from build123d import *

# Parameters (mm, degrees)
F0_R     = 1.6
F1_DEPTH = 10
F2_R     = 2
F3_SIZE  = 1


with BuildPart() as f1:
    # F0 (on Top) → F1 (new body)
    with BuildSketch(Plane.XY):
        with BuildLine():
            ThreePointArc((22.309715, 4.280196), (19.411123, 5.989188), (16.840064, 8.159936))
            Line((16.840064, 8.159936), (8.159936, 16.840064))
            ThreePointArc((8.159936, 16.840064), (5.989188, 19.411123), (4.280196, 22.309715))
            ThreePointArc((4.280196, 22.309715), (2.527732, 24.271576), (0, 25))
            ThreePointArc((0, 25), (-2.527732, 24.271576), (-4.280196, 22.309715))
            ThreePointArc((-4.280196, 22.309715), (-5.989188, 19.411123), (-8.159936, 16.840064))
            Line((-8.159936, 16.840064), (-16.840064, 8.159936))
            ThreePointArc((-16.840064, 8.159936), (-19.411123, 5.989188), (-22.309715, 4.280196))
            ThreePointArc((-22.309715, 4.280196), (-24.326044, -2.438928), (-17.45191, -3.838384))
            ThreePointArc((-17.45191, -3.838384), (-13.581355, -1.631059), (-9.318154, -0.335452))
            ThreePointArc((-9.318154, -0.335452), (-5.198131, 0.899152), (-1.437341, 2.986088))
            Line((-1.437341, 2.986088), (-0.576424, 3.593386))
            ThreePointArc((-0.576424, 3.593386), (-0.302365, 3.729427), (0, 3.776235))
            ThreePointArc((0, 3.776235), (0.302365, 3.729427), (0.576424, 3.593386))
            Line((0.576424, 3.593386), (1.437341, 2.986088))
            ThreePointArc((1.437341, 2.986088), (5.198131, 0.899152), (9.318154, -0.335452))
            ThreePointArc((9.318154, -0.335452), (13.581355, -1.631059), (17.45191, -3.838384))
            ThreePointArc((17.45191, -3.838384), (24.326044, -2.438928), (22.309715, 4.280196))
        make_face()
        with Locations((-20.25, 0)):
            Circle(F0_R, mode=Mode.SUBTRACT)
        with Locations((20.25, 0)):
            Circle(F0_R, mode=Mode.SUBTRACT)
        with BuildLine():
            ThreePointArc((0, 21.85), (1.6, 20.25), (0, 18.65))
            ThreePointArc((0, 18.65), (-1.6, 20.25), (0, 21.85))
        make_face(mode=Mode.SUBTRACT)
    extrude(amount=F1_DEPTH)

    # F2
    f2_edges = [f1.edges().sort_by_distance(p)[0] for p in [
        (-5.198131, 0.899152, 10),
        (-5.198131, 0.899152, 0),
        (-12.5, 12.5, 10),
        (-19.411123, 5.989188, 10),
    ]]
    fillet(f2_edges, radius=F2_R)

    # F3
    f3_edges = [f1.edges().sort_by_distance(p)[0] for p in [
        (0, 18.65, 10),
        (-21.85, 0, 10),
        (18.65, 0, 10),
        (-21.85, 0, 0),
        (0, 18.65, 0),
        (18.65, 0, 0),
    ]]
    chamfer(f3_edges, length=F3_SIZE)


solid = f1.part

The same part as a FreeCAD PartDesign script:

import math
import FreeCAD as App
import Part
import Sketcher

V = App.Vector


def edges_at(feature, points):
    """Names of the edges that pass closest to the given points."""
    edges = feature.Shape.Edges
    near = lambda p: min(range(len(edges)), key=lambda i: edges[i].distToShape(Part.Vertex(*p))[0])
    return sorted({f"Edge{near(p) + 1}" for p in points})

doc = App.newDocument("Part")
body = doc.addObject("PartDesign::Body", "Body")

sketch1 = body.newObject("Sketcher::SketchObject", "Sketch")
sketch1.AttachmentSupport = (doc.getObject("XY_Plane"), [""])
sketch1.MapMode = "FlatFace"
sketch1.addGeometry([
    Part.ArcOfCircle(Part.Circle(V(30.982208, 22.302085, 0), V(0, 0, 1), 20.000015), math.radians(-134.99999), math.radians(-115.69779)),
    Part.LineSegment(V(16.840064, 8.159936, 0), V(8.159936, 16.840064, 0)),
    Part.ArcOfCircle(Part.Circle(V(22.302085, 30.982208, 0), V(0, 0, 1), 20.000015), math.radians(-154.30221), math.radians(-135.00001)),
    Part.ArcOfCircle(Part.Circle(V(0.000001, 20.25, 0), V(0, 0, 1), 4.75), math.radians(25.697781), math.radians(90.000007)),
    Part.ArcOfCircle(Part.Circle(V(-0.000001, 20.25, 0), V(0, 0, 1), 4.75), math.radians(89.999993), math.radians(154.302219)),
    Part.ArcOfCircle(Part.Circle(V(-22.302085, 30.982208, 0), V(0, 0, 1), 20.000015), math.radians(-44.99999), math.radians(-25.69779)),
    Part.LineSegment(V(-8.159936, 16.840064, 0), V(-16.840064, 8.159936, 0)),
    Part.ArcOfCircle(Part.Circle(V(-30.982208, 22.302085, 0), V(0, 0, 1), 20.000015), math.radians(-64.30221), math.radians(-45.00001)),
    Part.ArcOfCircle(Part.Circle(V(-20.25, 0, 0), V(0, 0, 1), 4.75), math.radians(115.697777), math.radians(306.091156)),
    Part.ArcOfCircle(Part.Circle(V(-5.670473, -20.00001, 0), V(0, 0, 1), 20.000011), math.radians(100.50865), math.radians(126.09115)),
    Part.ArcOfCircle(Part.Circle(V(-12.965829, 19.329091, 0), V(0, 0, 1), 19.999994), math.radians(-79.49136), math.radians(-54.800544)),
    Part.LineSegment(V(-1.437341, 2.986088, 0), V(-0.576424, 3.593386, 0)),
    Part.ArcOfCircle(Part.Circle(V(0.000002, 2.776229, 0), V(0, 0, 1), 1.000006), math.radians(90.000096), math.radians(125.199279)),
    Part.ArcOfCircle(Part.Circle(V(-0.000002, 2.776229, 0), V(0, 0, 1), 1.000006), math.radians(54.800721), math.radians(89.999904)),
    Part.LineSegment(V(0.576424, 3.593386, 0), V(1.437341, 2.986088, 0)),
    Part.ArcOfCircle(Part.Circle(V(12.965829, 19.329091, 0), V(0, 0, 1), 19.999994), math.radians(-125.199456), math.radians(-100.50864)),
    Part.ArcOfCircle(Part.Circle(V(5.670473, -20.00001, 0), V(0, 0, 1), 20.000011), math.radians(53.90885), math.radians(79.49135)),
    Part.ArcOfCircle(Part.Circle(V(20.25, 0, 0), V(0, 0, 1), 4.75), math.radians(-126.091156), math.radians(64.302223)),
    Part.Circle(V(-20.25, 0, 0), V(0, 0, 1), 1.6),
    Part.Circle(V(20.25, 0, 0), V(0, 0, 1), 1.6),
    Part.Circle(V(0, 20.25, 0), V(0, 0, 1), 1.6),
], False)
sketch1.addConstraint([
    Sketcher.Constraint("Tangent", 0, 1, 1, 1),
    Sketcher.Constraint("Tangent", 1, 2, 2, 2),
    Sketcher.Constraint("Tangent", 2, 1, 3, 1),
    Sketcher.Constraint("Tangent", 3, 2, 4, 1),
    Sketcher.Constraint("Tangent", 4, 2, 5, 2),
    Sketcher.Constraint("Tangent", 5, 1, 6, 1),
    Sketcher.Constraint("Tangent", 6, 2, 7, 2),
    Sketcher.Constraint("Tangent", 7, 1, 8, 1),
    Sketcher.Constraint("Tangent", 8, 2, 9, 2),
    Sketcher.Constraint("Tangent", 9, 1, 10, 1),
    Sketcher.Constraint("Tangent", 10, 2, 11, 1),
    Sketcher.Constraint("Coincident", 11, 2, 12, 2),
    Sketcher.Constraint("Coincident", 12, 1, 13, 2),
    Sketcher.Constraint("Coincident", 13, 1, 14, 1),
    Sketcher.Constraint("Tangent", 14, 2, 15, 1),
    Sketcher.Constraint("Tangent", 15, 2, 16, 2),
    Sketcher.Constraint("Tangent", 16, 1, 17, 1),
    Sketcher.Constraint("Tangent", 17, 2, 0, 2),
    Sketcher.Constraint("Coincident", 13, 3, 12, 3),
    Sketcher.Constraint("Coincident", 18, 3, 8, 3),
    Sketcher.Constraint("Coincident", 19, 3, 17, 3),
    Sketcher.Constraint("Coincident", 20, 3, 3, 3),
    Sketcher.Constraint("Equal", 0, 2),
    Sketcher.Constraint("Equal", 3, 4),
    Sketcher.Constraint("Equal", 2, 5),
    Sketcher.Constraint("Equal", 5, 7),
    Sketcher.Constraint("Equal", 4, 8),
    Sketcher.Constraint("Equal", 10, 15),
    Sketcher.Constraint("Equal", 9, 16),
    Sketcher.Constraint("Equal", 8, 17),
    Sketcher.Constraint("Equal", 18, 19),
    Sketcher.Constraint("Equal", 19, 20),
    Sketcher.Constraint("Symmetric", 8, 3, 17, 3, -1, 1),
    Sketcher.Constraint("Symmetric", 2, 3, 5, 3, -2),
    Sketcher.Constraint("Symmetric", 0, 3, 7, 3, -2),
    Sketcher.Constraint("Symmetric", 10, 3, 15, 3, -2),
    Sketcher.Constraint("Symmetric", 11, 2, 13, 1, -2),
    Sketcher.Constraint("PointOnObject", 3, 2, -2),
    Sketcher.Constraint("PointOnObject", 12, 1, -2),
    Sketcher.Constraint("Perpendicular", 1, 6),
    Sketcher.Constraint("Diameter", 18, 3.2),
    Sketcher.Constraint("Radius", 3, 4.75),
    Sketcher.Constraint("DistanceY", -1, 1, 3, 2, 25.0),
    Sketcher.Constraint("DistanceX", 8, 3, -1, 1, 20.25),
    Sketcher.Constraint("Radius", 9, 20.000011),
    Sketcher.Constraint("Radius", 0, 20.000015),
    Sketcher.Constraint("Radius", 10, 19.999994),
    Sketcher.Constraint("Radius", 12, 1.000006),
    Sketcher.Constraint("DistanceY", 16, 3, 15, 3, 39.329101),
    Sketcher.Constraint("DistanceY", 10, 2, 11, 2, 0.607298),
    Sketcher.Constraint("Distance", 11, 1.05356),
    Sketcher.Constraint("DistanceX", -1, 1, 0, 3, 30.982208),
    Sketcher.Constraint("DistanceY", 9, 3, -1, 1, 20.00001),
])
pad1 = body.newObject("PartDesign::Pad", "Pad")
pad1.Profile = sketch1
pad1.Length = 10
doc.recompute()

fillet = body.newObject("PartDesign::Fillet", "Fillet")
fillet.Base = (pad1, edges_at(pad1, [
    (-5.198, 0.899, 10),
    (-5.198, 0.899, 0),
    (-12.5, 12.5, 10),
    (-19.411, 5.989, 10),
]))
fillet.Radius = 2
doc.recompute()

chamfer = body.newObject("PartDesign::Chamfer", "Chamfer")
chamfer.Base = (fillet, edges_at(fillet, [
    (0, 21.85, 10),
    (-21.85, 0, 10),
    (18.65, 0, 10),
    (-21.85, 0, 0),
    (0, 21.85, 0),
    (18.65, 0, 0),
]))
chamfer.Size = 1

doc.recompute()
